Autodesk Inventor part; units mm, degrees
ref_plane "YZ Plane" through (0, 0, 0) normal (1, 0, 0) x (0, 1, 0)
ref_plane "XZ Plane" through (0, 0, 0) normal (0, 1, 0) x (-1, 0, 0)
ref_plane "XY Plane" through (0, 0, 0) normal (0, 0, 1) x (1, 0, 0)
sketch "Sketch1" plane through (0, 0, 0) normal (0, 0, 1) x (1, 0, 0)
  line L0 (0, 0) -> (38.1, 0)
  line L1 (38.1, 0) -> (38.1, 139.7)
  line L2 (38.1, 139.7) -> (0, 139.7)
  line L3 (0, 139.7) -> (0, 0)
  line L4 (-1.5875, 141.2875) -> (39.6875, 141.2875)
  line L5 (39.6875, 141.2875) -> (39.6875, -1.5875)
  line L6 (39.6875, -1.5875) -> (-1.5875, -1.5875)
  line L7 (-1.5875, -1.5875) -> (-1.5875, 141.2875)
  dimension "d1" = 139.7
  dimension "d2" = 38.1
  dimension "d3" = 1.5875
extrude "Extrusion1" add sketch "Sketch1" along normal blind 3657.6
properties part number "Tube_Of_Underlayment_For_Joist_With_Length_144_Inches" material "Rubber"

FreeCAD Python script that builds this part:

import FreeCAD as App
import Part
import Sketcher

V = App.Vector
Q = App.Units.Quantity

doc = App.newDocument("Part")
body = doc.addObject("PartDesign::Body", "Body")

sketch1 = doc.addObject("Sketcher::SketchObject", "Sketch")
body.addObject(sketch1)
sketch1.AttachmentSupport = (doc.XY_Plane, [""])
sketch1.MapMode = "FlatFace"
sketch1.addGeometry([
    Part.LineSegment(V(40, 141, 0), V(-2, 141, 0)),
    Part.LineSegment(V(-2, 141, 0), V(-2, -2, 0)),
    Part.LineSegment(V(-2, -2, 0), V(40, -2, 0)),
    Part.LineSegment(V(40, -2, 0), V(40, 141, 0)),
    Part.LineSegment(V(38, 0, 0), V(0, 0, 0)),
    Part.LineSegment(V(0, 0, 0), V(0, 140, 0)),
    Part.LineSegment(V(0, 140, 0), V(38, 140, 0)),
    Part.LineSegment(V(38, 140, 0), V(38, 0, 0)),
], False)
sketch1.addConstraint([
    Sketcher.Constraint("Coincident", 0, 2, 1, 1),
    Sketcher.Constraint("Coincident", 1, 2, 2, 1),
    Sketcher.Constraint("Coincident", 2, 2, 3, 1),
    Sketcher.Constraint("Coincident", 3, 2, 0, 1),
    Sketcher.Constraint("Coincident", 4, 2, 5, 1),
    Sketcher.Constraint("Coincident", 5, 2, 6, 1),
    Sketcher.Constraint("Coincident", 6, 2, 7, 1),
    Sketcher.Constraint("Coincident", 7, 2, 4, 1),
    Sketcher.Constraint("Horizontal", 0),
    Sketcher.Constraint("Vertical", 1),
    Sketcher.Constraint("Horizontal", 2),
    Sketcher.Constraint("Vertical", 3),
    Sketcher.Constraint("Horizontal", 4),
    Sketcher.Constraint("Vertical", 5),
    Sketcher.Constraint("Horizontal", 6),
    Sketcher.Constraint("Vertical", 7),
    Sketcher.Constraint("Coincident", 4, 2, -1, 1),
    Sketcher.Constraint("DistanceX", 4, 2, 4, 1, Q("1.5 in")),
    Sketcher.Constraint("DistanceY", 5, 1, 5, 2, Q("5.5 in")),
    Sketcher.Constraint("DistanceX", 0, 2, -1, 1, Q("0.0625 in")),
    Sketcher.Constraint("DistanceY", 1, 2, -1, 1, Q("0.0625 in")),
    Sketcher.Constraint("DistanceY", 5, 2, 0, 2, Q("0.0625 in")),
    Sketcher.Constraint("DistanceX", 6, 2, 3, 2, Q("0.0625 in")),
])
pad1 = doc.addObject("PartDesign::Pad", "Pad")
body.addObject(pad1)
pad1.Profile = sketch1
pad1.Length = Q("144 in")

doc.recompute()
